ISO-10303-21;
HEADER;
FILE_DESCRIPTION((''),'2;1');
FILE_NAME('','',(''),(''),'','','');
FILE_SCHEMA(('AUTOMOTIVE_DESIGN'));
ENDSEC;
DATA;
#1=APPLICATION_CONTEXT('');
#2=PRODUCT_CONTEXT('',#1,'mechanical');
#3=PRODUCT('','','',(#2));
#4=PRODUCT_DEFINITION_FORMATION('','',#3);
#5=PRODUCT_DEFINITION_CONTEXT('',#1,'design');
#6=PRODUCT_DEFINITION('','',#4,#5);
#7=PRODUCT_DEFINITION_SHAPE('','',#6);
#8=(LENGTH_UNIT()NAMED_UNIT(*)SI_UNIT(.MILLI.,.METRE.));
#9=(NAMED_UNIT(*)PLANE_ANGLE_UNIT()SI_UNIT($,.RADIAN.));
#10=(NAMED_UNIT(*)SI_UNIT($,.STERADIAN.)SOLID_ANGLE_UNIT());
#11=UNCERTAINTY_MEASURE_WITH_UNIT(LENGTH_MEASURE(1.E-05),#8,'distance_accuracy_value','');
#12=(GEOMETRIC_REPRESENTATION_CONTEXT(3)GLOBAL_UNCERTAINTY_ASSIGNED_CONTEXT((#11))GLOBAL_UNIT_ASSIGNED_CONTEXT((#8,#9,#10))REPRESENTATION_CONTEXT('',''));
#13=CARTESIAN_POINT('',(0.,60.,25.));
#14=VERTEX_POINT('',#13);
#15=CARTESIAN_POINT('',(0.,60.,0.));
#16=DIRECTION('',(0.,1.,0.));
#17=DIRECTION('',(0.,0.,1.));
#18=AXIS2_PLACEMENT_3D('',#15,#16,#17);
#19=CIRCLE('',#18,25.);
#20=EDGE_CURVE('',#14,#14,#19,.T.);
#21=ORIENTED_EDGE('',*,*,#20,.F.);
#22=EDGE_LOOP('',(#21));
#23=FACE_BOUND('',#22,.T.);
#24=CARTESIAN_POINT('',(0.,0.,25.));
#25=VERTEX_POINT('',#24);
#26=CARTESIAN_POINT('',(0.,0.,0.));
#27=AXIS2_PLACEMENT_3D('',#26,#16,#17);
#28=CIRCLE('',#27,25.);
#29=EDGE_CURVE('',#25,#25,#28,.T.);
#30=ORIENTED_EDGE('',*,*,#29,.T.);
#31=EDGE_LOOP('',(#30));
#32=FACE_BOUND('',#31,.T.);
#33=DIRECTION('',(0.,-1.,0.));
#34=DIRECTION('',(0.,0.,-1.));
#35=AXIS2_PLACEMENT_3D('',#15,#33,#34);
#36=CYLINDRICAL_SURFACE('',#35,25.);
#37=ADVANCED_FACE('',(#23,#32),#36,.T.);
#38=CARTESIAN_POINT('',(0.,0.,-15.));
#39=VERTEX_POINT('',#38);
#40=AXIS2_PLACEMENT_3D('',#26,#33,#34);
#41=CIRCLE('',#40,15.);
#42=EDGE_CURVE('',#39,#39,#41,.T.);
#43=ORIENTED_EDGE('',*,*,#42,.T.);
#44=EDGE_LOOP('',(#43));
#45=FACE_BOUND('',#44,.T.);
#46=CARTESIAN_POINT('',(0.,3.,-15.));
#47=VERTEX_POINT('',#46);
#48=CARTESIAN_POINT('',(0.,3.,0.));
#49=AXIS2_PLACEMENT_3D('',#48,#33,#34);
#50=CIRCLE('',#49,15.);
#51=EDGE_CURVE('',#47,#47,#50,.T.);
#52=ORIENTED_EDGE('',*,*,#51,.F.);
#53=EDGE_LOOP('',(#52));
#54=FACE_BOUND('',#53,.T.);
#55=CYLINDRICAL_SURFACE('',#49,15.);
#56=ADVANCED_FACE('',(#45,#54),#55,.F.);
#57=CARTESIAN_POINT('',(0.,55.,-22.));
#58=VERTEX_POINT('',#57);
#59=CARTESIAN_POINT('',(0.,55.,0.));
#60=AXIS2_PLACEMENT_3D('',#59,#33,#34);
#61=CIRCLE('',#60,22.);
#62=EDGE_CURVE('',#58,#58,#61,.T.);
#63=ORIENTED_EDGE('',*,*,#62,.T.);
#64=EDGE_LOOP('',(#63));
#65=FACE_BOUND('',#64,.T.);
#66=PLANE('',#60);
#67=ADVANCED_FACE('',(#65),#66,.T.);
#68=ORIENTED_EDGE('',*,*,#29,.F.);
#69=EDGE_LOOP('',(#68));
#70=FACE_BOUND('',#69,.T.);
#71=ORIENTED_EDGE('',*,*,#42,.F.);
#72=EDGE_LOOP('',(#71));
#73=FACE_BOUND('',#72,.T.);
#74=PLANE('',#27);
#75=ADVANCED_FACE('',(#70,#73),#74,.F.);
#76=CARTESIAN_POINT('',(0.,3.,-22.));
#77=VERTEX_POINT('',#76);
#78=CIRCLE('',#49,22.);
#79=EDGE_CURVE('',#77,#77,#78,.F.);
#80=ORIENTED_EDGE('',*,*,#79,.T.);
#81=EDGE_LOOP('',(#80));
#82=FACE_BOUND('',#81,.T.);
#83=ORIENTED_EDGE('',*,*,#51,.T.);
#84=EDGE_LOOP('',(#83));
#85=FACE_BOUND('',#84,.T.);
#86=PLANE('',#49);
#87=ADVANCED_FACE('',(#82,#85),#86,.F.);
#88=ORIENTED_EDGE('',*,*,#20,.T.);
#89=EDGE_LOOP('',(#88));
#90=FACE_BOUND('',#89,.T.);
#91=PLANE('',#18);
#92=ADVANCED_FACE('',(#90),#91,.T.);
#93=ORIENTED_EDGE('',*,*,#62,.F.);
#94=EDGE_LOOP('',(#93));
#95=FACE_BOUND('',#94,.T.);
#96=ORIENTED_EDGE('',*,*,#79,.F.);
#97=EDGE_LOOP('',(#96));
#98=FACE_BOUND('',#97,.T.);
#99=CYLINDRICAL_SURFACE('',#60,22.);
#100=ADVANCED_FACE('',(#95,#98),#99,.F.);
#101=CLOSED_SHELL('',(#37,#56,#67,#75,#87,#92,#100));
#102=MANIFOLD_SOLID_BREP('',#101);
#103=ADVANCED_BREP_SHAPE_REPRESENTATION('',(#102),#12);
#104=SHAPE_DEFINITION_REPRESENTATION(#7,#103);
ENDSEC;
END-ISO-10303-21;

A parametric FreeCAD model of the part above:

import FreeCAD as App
import Part
import Sketcher
from FreeCAD import Vector
Q = App.Units.Quantity

doc = App.newDocument("Part")
body = doc.addObject("PartDesign::Body", "Body")

sketch1 = doc.addObject("Sketcher::SketchObject", "Sketch")
body.addObject(sketch1)
sketch1.AttachmentSupport = (doc.XZ_Plane, [""])
sketch1.MapMode = "FlatFace"
sketch1.addGeometry(Part.Circle(Vector(0, 0, 0), Vector(0, 0, 1), 25), False)
sketch1.addConstraint([
    Sketcher.Constraint("Coincident", 0, 3, -1, 1),
    Sketcher.Constraint("Diameter", 0, Q("50 mm")),
])
pad1 = doc.addObject("PartDesign::Pad", "Pad")
body.addObject(pad1)
pad1.Profile = sketch1
pad1.Length = 60
pad1.Reversed = True

sketch2 = doc.addObject("Sketcher::SketchObject", "Sketch001")
body.addObject(sketch2)
sketch2.AttachmentSupport = (doc.XZ_Plane, [""])
sketch2.MapMode = "FlatFace"
sketch2.addGeometry(Part.Circle(Vector(0, 0, 0), Vector(0, 0, 1), 22), False)
sketch2.addConstraint([
    Sketcher.Constraint("Coincident", 0, 3, -1, 1),
    Sketcher.Constraint("Diameter", 0, Q("44 mm")),
])
pocket1 = doc.addObject("PartDesign::Pocket", "Pocket")
body.addObject(pocket1)
pocket1.Profile = sketch2
pocket1.Length = 55

sketch3 = doc.addObject("Sketcher::SketchObject", "Sketch002")
body.addObject(sketch3)
sketch3.AttachmentSupport = (doc.XZ_Plane, [""])
sketch3.MapMode = "FlatFace"
sketch3.addGeometry([
    Part.Circle(Vector(0, 0, 0), Vector(0, 0, 1), 22),
    Part.Circle(Vector(0, 0, 0), Vector(0, 0, 1), 15),
], False)
sketch3.addConstraint([
    Sketcher.Constraint("Coincident", 0, 3, -1, 1),
    Sketcher.Constraint("Coincident", 1, 3, -1, 1),
    Sketcher.Constraint("Diameter", 0, Q("44 mm")),
    Sketcher.Constraint("Diameter", 1, Q("30 mm")),
])
pad2 = doc.addObject("PartDesign::Pad", "Pad001")
body.addObject(pad2)
pad2.Profile = sketch3
pad2.Length = 3
pad2.Reversed = True

doc.recompute()
